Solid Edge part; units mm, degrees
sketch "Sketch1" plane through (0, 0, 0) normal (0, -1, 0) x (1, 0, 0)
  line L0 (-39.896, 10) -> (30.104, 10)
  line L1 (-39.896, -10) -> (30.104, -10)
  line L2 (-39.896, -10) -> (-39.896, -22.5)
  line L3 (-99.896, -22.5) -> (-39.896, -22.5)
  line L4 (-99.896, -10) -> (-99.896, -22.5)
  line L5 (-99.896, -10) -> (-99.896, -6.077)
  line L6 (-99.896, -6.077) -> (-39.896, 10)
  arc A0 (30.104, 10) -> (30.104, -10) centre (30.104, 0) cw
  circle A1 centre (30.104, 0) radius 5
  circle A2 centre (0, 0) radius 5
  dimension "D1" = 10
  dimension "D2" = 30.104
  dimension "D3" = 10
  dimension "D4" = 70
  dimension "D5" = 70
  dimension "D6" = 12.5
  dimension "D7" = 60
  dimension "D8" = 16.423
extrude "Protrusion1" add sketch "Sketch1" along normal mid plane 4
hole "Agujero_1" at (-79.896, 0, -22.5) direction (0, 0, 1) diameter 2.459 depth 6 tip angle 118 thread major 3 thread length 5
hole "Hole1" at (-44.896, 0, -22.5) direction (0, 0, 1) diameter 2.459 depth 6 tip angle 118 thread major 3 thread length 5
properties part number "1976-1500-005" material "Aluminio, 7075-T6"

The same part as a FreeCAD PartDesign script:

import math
import FreeCAD as App
import Part
import Sketcher
from FreeCAD import Vector
Q = App.Units.Quantity

doc = App.newDocument("Part")
body = doc.addObject("PartDesign::Body", "Body")

sketch1 = body.newObject("Sketcher::SketchObject", "Sketch")
sketch1.AttachmentSupport = (doc.getObject("XZ_Plane"), [""])
sketch1.MapMode = "FlatFace"
sketch1.addGeometry(Part.LineSegment(Vector(30, 10, 0), Vector(-40, 10, 0)), False)
sketch1.addGeometry(Part.LineSegment(Vector(-40, 10, 0), Vector(-100, -6, 0)), False)
sketch1.addGeometry(Part.LineSegment(Vector(-100, -6, 0), Vector(-100, -22, 0)), False)
sketch1.addGeometry(Part.LineSegment(Vector(-100, -22, 0), Vector(-40, -22, 0)), False)
sketch1.addGeometry(Part.LineSegment(Vector(-40, -22, 0), Vector(-40, -10, 0)), False)
sketch1.addGeometry(Part.LineSegment(Vector(-40, -10, 0), Vector(30, -10, 0)), False)
sketch1.addGeometry(Part.ArcOfCircle(Part.Circle(Vector(30, 0, 0), Vector(0, 0, 1), 10), math.radians(-90), math.radians(90)), False)
sketch1.addGeometry(Part.Circle(Vector(0, 0, 0), Vector(0, 0, 1), 5), False)
sketch1.addGeometry(Part.Circle(Vector(30, 0, 0), Vector(0, 0, 1), 5), False)
sketch1.addConstraint(Sketcher.Constraint("Coincident", 0, 2, 1, 1))
sketch1.addConstraint(Sketcher.Constraint("Coincident", 1, 2, 2, 1))
sketch1.addConstraint(Sketcher.Constraint("Coincident", 2, 2, 3, 1))
sketch1.addConstraint(Sketcher.Constraint("Coincident", 3, 2, 4, 1))
sketch1.addConstraint(Sketcher.Constraint("Coincident", 4, 2, 5, 1))
sketch1.addConstraint(Sketcher.Constraint("Tangent", 5, 2, 6, 1))
sketch1.addConstraint(Sketcher.Constraint("Tangent", 6, 2, 0, 1))
sketch1.addConstraint(Sketcher.Constraint("Horizontal", 0))
sketch1.addConstraint(Sketcher.Constraint("Vertical", 2))
sketch1.addConstraint(Sketcher.Constraint("Horizontal", 3))
sketch1.addConstraint(Sketcher.Constraint("Vertical", 4))
sketch1.addConstraint(Sketcher.Constraint("Horizontal", 5))
sketch1.addConstraint(Sketcher.Constraint("Coincident", 7, 3, -1, 1))
sketch1.addConstraint(Sketcher.Constraint("Coincident", 8, 3, 6, 3))
sketch1.addConstraint(Sketcher.Constraint("Equal", 7, 8))
sketch1.addConstraint(Sketcher.Constraint("Symmetric", 0, 2, 4, 2, -1))
sketch1.addConstraint(Sketcher.Constraint("Diameter", 7, Q("10 mm")))
sketch1.addConstraint(Sketcher.Constraint("Radius", 6, Q("10 mm")))
sketch1.addConstraint(Sketcher.Constraint("DistanceX", 0, 2, 0, 1, Q("70 mm")))
sketch1.addConstraint(Sketcher.Constraint("DistanceX", 3, 1, 3, 2, Q("60 mm")))
sketch1.addConstraint(Sketcher.Constraint("Angle", 1, Q("-165 deg")))
sketch1.addConstraint(Sketcher.Constraint("DistanceY", 4, 1, 4, 2, Q("12.5 mm")))
sketch1.addConstraint(Sketcher.Constraint("DistanceX", 0, 2, -1, 1, Q("39.896 mm")))
pad1 = body.newObject("PartDesign::Pad", "Pad")
pad1.Profile = sketch1
pad1.Length = 4
pad1.Midplane = True

sketch2 = body.newObject("Sketcher::SketchObject", "Sketch001")
sketch2.AttachmentSupport = (doc.getObject("XY_Plane"), [""])
sketch2.MapMode = "FlatFace"
sketch2.AttachmentOffset = App.Placement(Vector(0, 0, -22.5), App.Rotation())
sketch2.addGeometry(Part.Circle(Vector(-79.9, 0, 0), Vector(0, 0, 1), 1.2), False)
sketch2.addConstraint(Sketcher.Constraint("PointOnObject", 0, 3, -1))
sketch2.addConstraint(Sketcher.Constraint("Diameter", 0, Q("2.459 mm")))
sketch2.addConstraint(Sketcher.Constraint("DistanceX", 0, 3, -1, 1, Q("79.896 mm")))
doc.recompute()
hole = body.newObject("PartDesign::Hole", "Hole")
hole.Profile = sketch2
hole.ThreadType = "None"
hole.Diameter = 2.459
hole.DepthType = "Dimension"
hole.Depth = 6
hole.DrillPoint = "Angled"
hole.DrillPointAngle = 118
hole.Reversed = True

sketch3 = body.newObject("Sketcher::SketchObject", "Sketch002")
sketch3.AttachmentSupport = (doc.getObject("XY_Plane"), [""])
sketch3.MapMode = "FlatFace"
sketch3.AttachmentOffset = App.Placement(Vector(0, 0, -22.5), App.Rotation())
sketch3.addGeometry(Part.Circle(Vector(-44.9, 0, 0), Vector(0, 0, 1), 1.2), False)
sketch3.addConstraint(Sketcher.Constraint("PointOnObject", 0, 3, -1))
sketch3.addConstraint(Sketcher.Constraint("Diameter", 0, Q("2.459 mm")))
sketch3.addConstraint(Sketcher.Constraint("DistanceX", 0, 3, -1, 1, Q("44.896 mm")))
doc.recompute()
hole2 = body.newObject("PartDesign::Hole", "Hole001")
hole2.Profile = sketch3
hole2.ThreadType = "None"
hole2.Diameter = 2.459
hole2.DepthType = "Dimension"
hole2.Depth = 6
hole2.DrillPoint = "Angled"
hole2.DrillPointAngle = 118
hole2.Reversed = True

doc.recompute()
